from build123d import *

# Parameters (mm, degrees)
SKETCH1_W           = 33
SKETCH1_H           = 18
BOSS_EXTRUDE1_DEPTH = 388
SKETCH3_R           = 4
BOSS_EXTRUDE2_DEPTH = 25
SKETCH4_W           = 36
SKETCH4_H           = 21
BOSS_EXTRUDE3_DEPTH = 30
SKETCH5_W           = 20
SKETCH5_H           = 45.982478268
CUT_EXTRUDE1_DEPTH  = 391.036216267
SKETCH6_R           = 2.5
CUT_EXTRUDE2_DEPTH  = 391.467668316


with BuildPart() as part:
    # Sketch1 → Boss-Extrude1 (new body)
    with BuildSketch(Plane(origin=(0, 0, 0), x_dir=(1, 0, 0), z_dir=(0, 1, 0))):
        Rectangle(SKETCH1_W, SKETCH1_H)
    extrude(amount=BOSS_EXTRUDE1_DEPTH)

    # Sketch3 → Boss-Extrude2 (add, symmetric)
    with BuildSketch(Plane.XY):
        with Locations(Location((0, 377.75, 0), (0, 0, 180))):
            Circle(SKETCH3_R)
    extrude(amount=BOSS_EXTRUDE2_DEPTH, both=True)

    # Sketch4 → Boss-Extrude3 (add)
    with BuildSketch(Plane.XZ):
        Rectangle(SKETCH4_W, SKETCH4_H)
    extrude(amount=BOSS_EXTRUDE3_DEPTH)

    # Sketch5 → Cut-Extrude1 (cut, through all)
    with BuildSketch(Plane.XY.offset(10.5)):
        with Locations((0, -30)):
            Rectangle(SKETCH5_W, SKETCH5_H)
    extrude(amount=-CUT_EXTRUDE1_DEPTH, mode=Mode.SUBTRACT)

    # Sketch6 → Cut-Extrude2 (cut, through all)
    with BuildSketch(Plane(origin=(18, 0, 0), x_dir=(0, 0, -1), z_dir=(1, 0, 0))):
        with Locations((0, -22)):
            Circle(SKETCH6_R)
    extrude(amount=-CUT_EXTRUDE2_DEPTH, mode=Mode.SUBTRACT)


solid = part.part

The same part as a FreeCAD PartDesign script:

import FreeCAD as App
import Part
import Sketcher

V = App.Vector
Q = App.Units.Quantity

doc = App.newDocument("Part")
body = doc.addObject("PartDesign::Body", "Body")

sketch1 = body.newObject("Sketcher::SketchObject", "Sketch")
sketch1.AttachmentSupport = (doc.getObject("XZ_Plane"), [""])
sketch1.MapMode = "FlatFace"
sketch1.addGeometry([
    Part.LineSegment(V(-16.5, -9, 0), V(-16.5, 9, 0)),
    Part.LineSegment(V(-16.5, 9, 0), V(16.5, 9, 0)),
    Part.LineSegment(V(16.5, 9, 0), V(16.5, -9, 0)),
    Part.LineSegment(V(16.5, -9, 0), V(-16.5, -9, 0)),
], False)
sketch1.addConstraint([
    Sketcher.Constraint("Coincident", 0, 2, 1, 1),
    Sketcher.Constraint("Coincident", 1, 2, 2, 1),
    Sketcher.Constraint("Coincident", 2, 2, 3, 1),
    Sketcher.Constraint("Coincident", 3, 2, 0, 1),
    Sketcher.Constraint("Vertical", 0),
    Sketcher.Constraint("Horizontal", 1),
    Sketcher.Constraint("Vertical", 2),
    Sketcher.Constraint("Horizontal", 3),
    Sketcher.Constraint("Symmetric", 0, 2, 2, 2, -1, 1),
    Sketcher.Constraint("DistanceX", 1, 1, 1, 2, Q("33 mm")),
    Sketcher.Constraint("DistanceY", 0, 1, 0, 2, Q("18 mm")),
])
pad1 = body.newObject("PartDesign::Pad", "Pad")
pad1.Profile = sketch1
pad1.Length = 388
pad1.Reversed = True

sketch2 = body.newObject("Sketcher::SketchObject", "Sketch001")
sketch2.AttachmentSupport = (doc.getObject("XY_Plane"), [""])
sketch2.MapMode = "FlatFace"
sketch2.addGeometry(Part.Circle(V(0, 377.75, 0), V(0, 0, 1), 4), False)
sketch2.addConstraint([
    Sketcher.Constraint("PointOnObject", 0, 3, -2),
    Sketcher.Constraint("Diameter", 0, Q("8 mm")),
    Sketcher.Constraint("DistanceY", -1, 1, 0, 3, Q("377.75 mm")),
])
pad2 = body.newObject("PartDesign::Pad", "Pad001")
pad2.Profile = sketch2
pad2.Length = 50
pad2.Midplane = True

sketch3 = body.newObject("Sketcher::SketchObject", "Sketch002")
sketch3.AttachmentSupport = (doc.getObject("XZ_Plane"), [""])
sketch3.MapMode = "FlatFace"
sketch3.addGeometry([
    Part.LineSegment(V(-18, 10.5, 0), V(-18, -10.5, 0)),
    Part.LineSegment(V(-18, -10.5, 0), V(18, -10.5, 0)),
    Part.LineSegment(V(18, -10.5, 0), V(18, 10.5, 0)),
    Part.LineSegment(V(18, 10.5, 0), V(-18, 10.5, 0)),
], False)
sketch3.addConstraint([
    Sketcher.Constraint("Coincident", 0, 2, 1, 1),
    Sketcher.Constraint("Coincident", 1, 2, 2, 1),
    Sketcher.Constraint("Coincident", 2, 2, 3, 1),
    Sketcher.Constraint("Coincident", 3, 2, 0, 1),
    Sketcher.Constraint("Vertical", 0),
    Sketcher.Constraint("Horizontal", 1),
    Sketcher.Constraint("Vertical", 2),
    Sketcher.Constraint("Horizontal", 3),
    Sketcher.Constraint("Symmetric", 0, 2, 2, 2, -1, 1),
    Sketcher.Constraint("DistanceX", 1, 1, 1, 2, Q("36 mm")),
    Sketcher.Constraint("DistanceY", 0, 2, 0, 1, Q("21 mm")),
])
pad3 = body.newObject("PartDesign::Pad", "Pad002")
pad3.Profile = sketch3
pad3.Length = 30

sketch4 = body.newObject("Sketcher::SketchObject", "Sketch003")
sketch4.AttachmentSupport = (doc.getObject("XY_Plane"), [""])
sketch4.MapMode = "FlatFace"
sketch4.AttachmentOffset = App.Placement(V(0, 0, 10.5), App.Rotation())
sketch4.addGeometry([
    Part.LineSegment(V(-10, -7.008761, 0), V(-10, -52.991239, 0)),
    Part.LineSegment(V(-10, -52.991239, 0), V(10, -52.991239, 0)),
    Part.LineSegment(V(10, -52.991239, 0), V(10, -7.008761, 0)),
    Part.LineSegment(V(10, -7.008761, 0), V(-10, -7.008761, 0)),
], False)
sketch4.addConstraint([
    Sketcher.Constraint("Coincident", 0, 2, 1, 1),
    Sketcher.Constraint("Coincident", 1, 2, 2, 1),
    Sketcher.Constraint("Coincident", 2, 2, 3, 1),
    Sketcher.Constraint("Coincident", 3, 2, 0, 1),
    Sketcher.Constraint("Vertical", 0),
    Sketcher.Constraint("Horizontal", 1),
    Sketcher.Constraint("Vertical", 2),
    Sketcher.Constraint("Horizontal", 3),
    Sketcher.Constraint("DistanceX", 1, 1, 1, 2, Q("20 mm")),
    Sketcher.Constraint("DistanceX", 0, 2, -1, 1, Q("10 mm")),
    Sketcher.Constraint("DistanceY", 0, 2, 0, 1, Q("45.982478 mm")),
    Sketcher.Constraint("DistanceY", 0, 2, -1, 1, Q("52.991239 mm")),
])
pocket1 = body.newObject("PartDesign::Pocket", "Pocket")
pocket1.Profile = sketch4
pocket1.Type = "ThroughAll"

sketch5 = body.newObject("Sketcher::SketchObject", "Sketch004")
sketch5.AttachmentSupport = (doc.getObject("YZ_Plane"), [""])
sketch5.MapMode = "FlatFace"
sketch5.AttachmentOffset = App.Placement(V(0, 0, 18), App.Rotation())
sketch5.addGeometry(Part.Circle(V(-22, 0, 0), V(0, 0, 1), 2.5), False)
sketch5.addConstraint([
    Sketcher.Constraint("PointOnObject", 0, 3, -1),
    Sketcher.Constraint("Diameter", 0, Q("5 mm")),
    Sketcher.Constraint("DistanceX", 0, 3, -1, 1, Q("22 mm")),
])
pocket2 = body.newObject("PartDesign::Pocket", "Pocket001")
pocket2.Profile = sketch5
pocket2.Type = "ThroughAll"

doc.recompute()
